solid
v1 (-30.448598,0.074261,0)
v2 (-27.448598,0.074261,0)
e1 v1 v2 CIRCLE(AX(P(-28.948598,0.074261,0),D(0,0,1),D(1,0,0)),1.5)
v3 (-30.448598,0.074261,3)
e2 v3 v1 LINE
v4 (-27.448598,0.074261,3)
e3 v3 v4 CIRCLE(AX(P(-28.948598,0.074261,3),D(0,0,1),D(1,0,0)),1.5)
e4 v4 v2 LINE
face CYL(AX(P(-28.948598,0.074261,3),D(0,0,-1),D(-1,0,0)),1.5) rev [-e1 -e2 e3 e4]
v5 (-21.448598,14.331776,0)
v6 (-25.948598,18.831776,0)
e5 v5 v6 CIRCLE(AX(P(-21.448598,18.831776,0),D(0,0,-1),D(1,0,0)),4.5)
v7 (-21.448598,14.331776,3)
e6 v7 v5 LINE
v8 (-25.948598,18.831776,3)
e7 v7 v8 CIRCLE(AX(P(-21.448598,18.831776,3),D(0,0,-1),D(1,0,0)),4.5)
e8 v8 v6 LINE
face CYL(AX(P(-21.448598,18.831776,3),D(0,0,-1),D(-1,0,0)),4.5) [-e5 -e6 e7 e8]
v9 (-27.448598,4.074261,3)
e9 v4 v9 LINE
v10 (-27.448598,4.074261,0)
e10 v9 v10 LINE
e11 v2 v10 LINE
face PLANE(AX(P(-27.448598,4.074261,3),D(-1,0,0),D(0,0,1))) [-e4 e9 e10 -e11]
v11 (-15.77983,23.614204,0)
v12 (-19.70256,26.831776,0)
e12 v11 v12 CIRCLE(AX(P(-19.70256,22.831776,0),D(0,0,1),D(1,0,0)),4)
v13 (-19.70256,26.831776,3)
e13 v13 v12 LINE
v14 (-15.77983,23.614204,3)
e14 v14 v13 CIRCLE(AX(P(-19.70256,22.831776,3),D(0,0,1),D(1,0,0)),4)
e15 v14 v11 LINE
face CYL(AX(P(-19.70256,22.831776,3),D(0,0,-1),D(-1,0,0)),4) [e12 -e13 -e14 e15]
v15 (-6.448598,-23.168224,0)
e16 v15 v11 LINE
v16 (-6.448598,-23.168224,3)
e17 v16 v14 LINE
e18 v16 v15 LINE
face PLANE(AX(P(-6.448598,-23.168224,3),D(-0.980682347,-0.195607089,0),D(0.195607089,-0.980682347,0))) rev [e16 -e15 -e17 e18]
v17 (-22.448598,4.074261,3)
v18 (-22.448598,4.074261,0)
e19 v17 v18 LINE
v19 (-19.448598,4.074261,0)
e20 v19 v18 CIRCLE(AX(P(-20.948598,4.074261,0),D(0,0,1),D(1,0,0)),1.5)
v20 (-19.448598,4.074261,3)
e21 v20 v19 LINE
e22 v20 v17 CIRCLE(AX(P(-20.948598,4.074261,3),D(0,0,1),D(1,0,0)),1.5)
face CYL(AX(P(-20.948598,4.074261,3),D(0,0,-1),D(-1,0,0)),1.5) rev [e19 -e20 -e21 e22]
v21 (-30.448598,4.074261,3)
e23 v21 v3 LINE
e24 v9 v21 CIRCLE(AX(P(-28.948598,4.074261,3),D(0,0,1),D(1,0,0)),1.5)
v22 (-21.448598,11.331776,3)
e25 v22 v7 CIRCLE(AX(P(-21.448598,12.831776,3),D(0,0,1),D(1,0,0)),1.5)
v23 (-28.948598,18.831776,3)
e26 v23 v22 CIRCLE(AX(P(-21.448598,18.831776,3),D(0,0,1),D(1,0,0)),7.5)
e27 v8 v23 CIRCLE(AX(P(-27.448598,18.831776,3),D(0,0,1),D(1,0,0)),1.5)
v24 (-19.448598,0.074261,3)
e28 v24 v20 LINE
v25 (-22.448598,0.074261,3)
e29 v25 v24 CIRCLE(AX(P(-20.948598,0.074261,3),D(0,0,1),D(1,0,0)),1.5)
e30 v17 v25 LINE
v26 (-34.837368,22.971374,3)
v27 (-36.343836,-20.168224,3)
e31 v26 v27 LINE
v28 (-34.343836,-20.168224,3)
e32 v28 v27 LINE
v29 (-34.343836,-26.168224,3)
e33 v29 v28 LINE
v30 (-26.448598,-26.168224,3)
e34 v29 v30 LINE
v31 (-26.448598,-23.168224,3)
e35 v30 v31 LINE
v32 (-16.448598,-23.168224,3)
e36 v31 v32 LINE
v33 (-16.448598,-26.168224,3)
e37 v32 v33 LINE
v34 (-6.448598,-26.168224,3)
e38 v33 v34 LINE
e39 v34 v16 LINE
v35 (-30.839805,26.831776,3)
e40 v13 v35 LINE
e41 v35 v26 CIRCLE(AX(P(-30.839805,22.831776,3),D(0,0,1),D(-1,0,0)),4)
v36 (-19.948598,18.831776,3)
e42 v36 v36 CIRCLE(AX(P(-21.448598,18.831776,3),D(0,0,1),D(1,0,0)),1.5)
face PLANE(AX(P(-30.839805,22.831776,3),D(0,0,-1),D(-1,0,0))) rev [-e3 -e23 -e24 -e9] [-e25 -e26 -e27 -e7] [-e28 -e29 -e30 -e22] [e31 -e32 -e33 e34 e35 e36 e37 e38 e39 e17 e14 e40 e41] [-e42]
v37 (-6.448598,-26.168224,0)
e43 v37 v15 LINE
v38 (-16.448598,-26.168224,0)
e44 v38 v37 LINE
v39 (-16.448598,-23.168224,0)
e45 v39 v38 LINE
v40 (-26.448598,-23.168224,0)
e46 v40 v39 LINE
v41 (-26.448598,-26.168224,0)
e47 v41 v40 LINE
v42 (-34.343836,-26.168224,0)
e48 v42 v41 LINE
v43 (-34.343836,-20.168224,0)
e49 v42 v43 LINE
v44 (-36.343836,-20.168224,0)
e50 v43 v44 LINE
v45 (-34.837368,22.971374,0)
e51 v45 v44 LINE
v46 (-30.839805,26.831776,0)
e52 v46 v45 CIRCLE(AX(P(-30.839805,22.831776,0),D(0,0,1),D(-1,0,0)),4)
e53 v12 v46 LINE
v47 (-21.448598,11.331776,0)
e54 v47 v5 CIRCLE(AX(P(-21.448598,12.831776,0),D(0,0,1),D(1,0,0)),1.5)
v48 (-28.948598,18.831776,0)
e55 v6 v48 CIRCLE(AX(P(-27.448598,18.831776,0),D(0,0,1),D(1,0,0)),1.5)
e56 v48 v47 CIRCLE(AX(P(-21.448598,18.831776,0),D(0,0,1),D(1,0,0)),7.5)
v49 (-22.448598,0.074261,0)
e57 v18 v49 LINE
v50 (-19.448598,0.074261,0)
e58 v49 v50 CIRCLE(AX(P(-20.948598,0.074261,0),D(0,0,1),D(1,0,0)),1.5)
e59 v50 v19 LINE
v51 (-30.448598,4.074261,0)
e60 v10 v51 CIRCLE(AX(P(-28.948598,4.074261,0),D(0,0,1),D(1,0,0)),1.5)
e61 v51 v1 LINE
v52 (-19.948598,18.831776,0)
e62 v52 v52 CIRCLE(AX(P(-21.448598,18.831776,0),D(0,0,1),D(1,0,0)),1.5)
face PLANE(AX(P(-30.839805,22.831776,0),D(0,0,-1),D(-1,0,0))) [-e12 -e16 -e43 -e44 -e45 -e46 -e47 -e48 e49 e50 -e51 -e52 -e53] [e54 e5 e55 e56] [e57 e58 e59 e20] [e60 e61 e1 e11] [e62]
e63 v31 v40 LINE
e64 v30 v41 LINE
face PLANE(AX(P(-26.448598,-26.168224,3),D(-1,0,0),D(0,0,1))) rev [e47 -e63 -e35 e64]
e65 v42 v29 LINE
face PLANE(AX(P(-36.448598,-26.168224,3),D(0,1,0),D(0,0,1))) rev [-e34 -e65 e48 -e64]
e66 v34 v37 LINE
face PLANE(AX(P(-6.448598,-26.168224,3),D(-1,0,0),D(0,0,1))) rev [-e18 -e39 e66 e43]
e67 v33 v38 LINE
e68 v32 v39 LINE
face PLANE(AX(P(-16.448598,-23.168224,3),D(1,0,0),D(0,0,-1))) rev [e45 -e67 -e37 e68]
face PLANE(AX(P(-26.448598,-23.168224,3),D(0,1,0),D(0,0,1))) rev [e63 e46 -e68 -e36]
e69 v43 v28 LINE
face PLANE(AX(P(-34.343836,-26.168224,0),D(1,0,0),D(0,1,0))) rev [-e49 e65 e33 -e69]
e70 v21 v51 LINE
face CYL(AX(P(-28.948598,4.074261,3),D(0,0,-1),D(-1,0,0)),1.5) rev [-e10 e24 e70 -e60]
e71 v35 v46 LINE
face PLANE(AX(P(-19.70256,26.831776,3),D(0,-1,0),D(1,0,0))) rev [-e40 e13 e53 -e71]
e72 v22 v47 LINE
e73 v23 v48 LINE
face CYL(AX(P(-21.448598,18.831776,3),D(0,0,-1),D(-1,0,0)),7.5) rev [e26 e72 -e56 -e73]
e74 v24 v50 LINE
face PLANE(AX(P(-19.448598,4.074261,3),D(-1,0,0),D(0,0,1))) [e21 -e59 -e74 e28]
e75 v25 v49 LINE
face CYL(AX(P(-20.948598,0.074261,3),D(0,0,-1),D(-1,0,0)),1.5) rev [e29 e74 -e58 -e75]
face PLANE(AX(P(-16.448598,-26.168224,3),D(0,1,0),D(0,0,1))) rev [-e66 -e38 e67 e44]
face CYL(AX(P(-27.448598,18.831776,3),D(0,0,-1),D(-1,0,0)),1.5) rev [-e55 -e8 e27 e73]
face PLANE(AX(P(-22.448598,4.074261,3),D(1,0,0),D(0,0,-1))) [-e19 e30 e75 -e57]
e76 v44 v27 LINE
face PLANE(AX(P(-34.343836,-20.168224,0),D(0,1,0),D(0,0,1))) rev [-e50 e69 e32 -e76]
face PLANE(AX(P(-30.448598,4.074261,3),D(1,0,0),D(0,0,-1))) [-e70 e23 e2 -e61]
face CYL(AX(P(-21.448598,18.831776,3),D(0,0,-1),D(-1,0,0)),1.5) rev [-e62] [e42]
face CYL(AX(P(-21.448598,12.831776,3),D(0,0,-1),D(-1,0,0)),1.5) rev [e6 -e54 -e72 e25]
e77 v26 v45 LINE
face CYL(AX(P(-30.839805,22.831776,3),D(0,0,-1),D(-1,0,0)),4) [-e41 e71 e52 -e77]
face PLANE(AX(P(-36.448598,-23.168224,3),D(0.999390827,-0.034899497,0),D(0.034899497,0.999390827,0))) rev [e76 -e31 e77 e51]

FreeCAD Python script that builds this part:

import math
import FreeCAD as App
import Part
import Sketcher
from FreeCAD import Vector
Q = App.Units.Quantity


def add_polygon(sketch, points):
    """Adds a closed chain of lines whose ends are joined by coincident constraints."""
    first, n = sketch.GeometryCount, len(points)
    for a, b in zip(points, points[1:] + points[:1]):
        sketch.addGeometry(Part.LineSegment(App.Vector(*a, 0), App.Vector(*b, 0)), False)
    for i in range(n):
        sketch.addConstraint(Sketcher.Constraint("Coincident", first + i, 2, first + (i + 1) % n, 1))

doc = App.newDocument("Part")
body = doc.addObject("PartDesign::Body", "Body")

# Sketch on XY plane
sketch1 = doc.addObject("Sketcher::SketchObject", "Sketch")
body.addObject(sketch1)
sketch1.AttachmentSupport = (doc.XY_Plane, [""])
sketch1.MapMode = "FlatFace"
sketch1.addGeometry(Part.LineSegment(Vector(-36.4, -23.2, 0), Vector(-36.4, -26.2, 0)), False)
sketch1.addGeometry(Part.LineSegment(Vector(-36.4, -26.2, 0), Vector(-26.4, -26.2, 0)), False)
sketch1.addGeometry(Part.LineSegment(Vector(-26.4, -26.2, 0), Vector(-26.4, -23.2, 0)), False)
sketch1.addGeometry(Part.LineSegment(Vector(-26.4, -23.2, 0), Vector(-16.4, -23.2, 0)), False)
sketch1.addGeometry(Part.LineSegment(Vector(-16.4, -23.2, 0), Vector(-16.4, -26.2, 0)), False)
sketch1.addGeometry(Part.LineSegment(Vector(-16.4, -26.2, 0), Vector(-6.4, -26.2, 0)), False)
sketch1.addGeometry(Part.LineSegment(Vector(-6.4, -26.2, 0), Vector(-6.4, -23.2, 0)), False)
sketch1.addGeometry(Part.LineSegment(Vector(-6.4, -23.2, 0), Vector(-15.8, 23.6, 0)), False)
sketch1.addGeometry(Part.ArcOfCircle(Part.Circle(Vector(-19.7, 22.8, 0), Vector(0, 0, 1), 4), math.radians(11), math.radians(90)), False)
sketch1.addGeometry(Part.LineSegment(Vector(-19.7, 26.8, 0), Vector(-30.8, 26.8, 0)), False)
sketch1.addGeometry(Part.ArcOfCircle(Part.Circle(Vector(-30.8, 22.8, 0), Vector(0, 0, 1), 4), math.radians(90), math.radians(178)), False)
sketch1.addGeometry(Part.LineSegment(Vector(-34.8, 23, 0), Vector(-36.4, -23.2, 0)), False)
sketch1.addGeometry(Part.LineSegment(Vector(-19.4, 4.1, 0), Vector(-19.4, 0.1, 0)), False)
sketch1.addGeometry(Part.ArcOfCircle(Part.Circle(Vector(-20.9, 0.1, 0), Vector(0, 0, 1), 1.5), math.radians(180), math.radians(360)), False)
sketch1.addGeometry(Part.LineSegment(Vector(-22.4, 0.1, 0), Vector(-22.4, 4.1, 0)), False)
sketch1.addGeometry(Part.ArcOfCircle(Part.Circle(Vector(-20.9, 4.1, 0), Vector(0, 0, 1), 1.5), math.radians(0), math.radians(180)), False)
sketch1.addGeometry(Part.LineSegment(Vector(-27.4, 4.1, 0), Vector(-27.4, 0.1, 0)), False)
sketch1.addGeometry(Part.ArcOfCircle(Part.Circle(Vector(-28.9, 0.1, 0), Vector(0, 0, 1), 1.5), math.radians(180), math.radians(360)), False)
sketch1.addGeometry(Part.LineSegment(Vector(-30.4, 0.1, 0), Vector(-30.4, 4.1, 0)), False)
sketch1.addGeometry(Part.ArcOfCircle(Part.Circle(Vector(-28.9, 4.1, 0), Vector(0, 0, 1), 1.5), math.radians(0), math.radians(180)), False)
sketch1.addGeometry(Part.Circle(Vector(-21.4, 18.8, 0), Vector(0, 0, 1), 1.5), False)
sketch1.addGeometry(Part.ArcOfCircle(Part.Circle(Vector(-27.4, 18.8, 0), Vector(0, 0, 1), 1.5), math.radians(0), math.radians(180)), False)
sketch1.addGeometry(Part.ArcOfCircle(Part.Circle(Vector(-21.4, 18.8, 0), Vector(0, 0, 1), 4.5), math.radians(-180), math.radians(-90)), False)
sketch1.addGeometry(Part.ArcOfCircle(Part.Circle(Vector(-21.4, 12.8, 0), Vector(0, 0, 1), 1.5), math.radians(-90), math.radians(90)), False)
sketch1.addGeometry(Part.ArcOfCircle(Part.Circle(Vector(-21.4, 18.8, 0), Vector(0, 0, 1), 7.5), math.radians(180), math.radians(270)), False)
sketch1.addConstraint(Sketcher.Constraint("Coincident", 0, 2, 1, 1))
sketch1.addConstraint(Sketcher.Constraint("Coincident", 1, 2, 2, 1))
sketch1.addConstraint(Sketcher.Constraint("Coincident", 2, 2, 3, 1))
sketch1.addConstraint(Sketcher.Constraint("Coincident", 3, 2, 4, 1))
sketch1.addConstraint(Sketcher.Constraint("Coincident", 4, 2, 5, 1))
sketch1.addConstraint(Sketcher.Constraint("Coincident", 5, 2, 6, 1))
sketch1.addConstraint(Sketcher.Constraint("Coincident", 6, 2, 7, 1))
sketch1.addConstraint(Sketcher.Constraint("Tangent", 7, 2, 8, 1))
sketch1.addConstraint(Sketcher.Constraint("Tangent", 8, 2, 9, 1))
sketch1.addConstraint(Sketcher.Constraint("Tangent", 9, 2, 10, 1))
sketch1.addConstraint(Sketcher.Constraint("Tangent", 10, 2, 11, 1))
sketch1.addConstraint(Sketcher.Constraint("Coincident", 11, 2, 0, 1))
sketch1.addConstraint(Sketcher.Constraint("Tangent", 12, 2, 13, 2))
sketch1.addConstraint(Sketcher.Constraint("Tangent", 13, 1, 14, 1))
sketch1.addConstraint(Sketcher.Constraint("Tangent", 14, 2, 15, 2))
sketch1.addConstraint(Sketcher.Constraint("Tangent", 15, 1, 12, 1))
sketch1.addConstraint(Sketcher.Constraint("Tangent", 16, 2, 17, 2))
sketch1.addConstraint(Sketcher.Constraint("Tangent", 17, 1, 18, 1))
sketch1.addConstraint(Sketcher.Constraint("Tangent", 18, 2, 19, 2))
sketch1.addConstraint(Sketcher.Constraint("Tangent", 19, 1, 16, 1))
sketch1.addConstraint(Sketcher.Constraint("Tangent", 21, 1, 22, 1))
sketch1.addConstraint(Sketcher.Constraint("Tangent", 22, 2, 23, 2))
sketch1.addConstraint(Sketcher.Constraint("Tangent", 23, 1, 24, 2))
sketch1.addConstraint(Sketcher.Constraint("Tangent", 24, 1, 21, 2))
sketch1.addConstraint(Sketcher.Constraint("Vertical", 0))
sketch1.addConstraint(Sketcher.Constraint("Horizontal", 1))
sketch1.addConstraint(Sketcher.Constraint("Vertical", 2))
sketch1.addConstraint(Sketcher.Constraint("Horizontal", 3))
sketch1.addConstraint(Sketcher.Constraint("Vertical", 4))
sketch1.addConstraint(Sketcher.Constraint("Horizontal", 5))
sketch1.addConstraint(Sketcher.Constraint("Vertical", 6))
sketch1.addConstraint(Sketcher.Constraint("Horizontal", 9))
sketch1.addConstraint(Sketcher.Constraint("Vertical", 12))
sketch1.addConstraint(Sketcher.Constraint("Vertical", 14))
sketch1.addConstraint(Sketcher.Constraint("Vertical", 16))
sketch1.addConstraint(Sketcher.Constraint("Vertical", 18))
sketch1.addConstraint(Sketcher.Constraint("Coincident", 22, 3, 20, 3))
sketch1.addConstraint(Sketcher.Constraint("Coincident", 24, 3, 20, 3))
sketch1.addConstraint(Sketcher.Constraint("Equal", 8, 10))
sketch1.addConstraint(Sketcher.Constraint("Equal", 15, 17))
sketch1.addConstraint(Sketcher.Constraint("Equal", 19, 20))
sketch1.addConstraint(Sketcher.Constraint("Equal", 20, 21))
sketch1.addConstraint(Sketcher.Constraint("Horizontal", 13, 3, 17, 3))
sketch1.addConstraint(Sketcher.Constraint("Horizontal", 15, 3, 19, 3))
sketch1.addConstraint(Sketcher.Constraint("Horizontal", 20, 3, 21, 3))
sketch1.addConstraint(Sketcher.Constraint("Horizontal", 1, 2, 4, 2))
sketch1.addConstraint(Sketcher.Constraint("Horizontal", 3, 2, 6, 2))
sketch1.addConstraint(Sketcher.Constraint("Horizontal", 6, 2, 11, 2))
sketch1.addConstraint(Sketcher.Constraint("Vertical", 22, 3, 23, 3))
sketch1.addConstraint(Sketcher.Constraint("Vertical", 21, 3, 16, 2))
sketch1.addConstraint(Sketcher.Constraint("Equal", 1, 3))
sketch1.addConstraint(Sketcher.Constraint("Equal", 3, 5))
sketch1.addConstraint(Sketcher.Constraint("Diameter", 20, Q("3 mm")))
sketch1.addConstraint(Sketcher.Constraint("Radius", 8, Q("4 mm")))
sketch1.addConstraint(Sketcher.Constraint("Radius", 22, Q("4.5 mm")))
sketch1.addConstraint(Sketcher.Constraint("DistanceX", 1, 1, 1, 2, Q("10 mm")))
sketch1.addConstraint(Sketcher.Constraint("DistanceY", 0, 2, 0, 1, Q("3 mm")))
sketch1.addConstraint(Sketcher.Constraint("DistanceY", 12, 2, 12, 1, Q("4 mm")))
sketch1.addConstraint(Sketcher.Constraint("Angle", 11, Q("-92 deg")))
sketch1.addConstraint(Sketcher.Constraint("DistanceX", 17, 3, 13, 3, Q("8 mm")))
sketch1.addConstraint(Sketcher.Constraint("DistanceY", 20, 3, 8, 3, Q("4 mm")))
sketch1.addConstraint(Sketcher.Constraint("DistanceX", 0, 2, 23, 3, Q("15 mm")))
sketch1.addConstraint(Sketcher.Constraint("DistanceY", 0, 2, 23, 3, Q("39 mm")))
sketch1.addConstraint(Sketcher.Constraint("DistanceX", 13, 3, -1, 1, Q("20.948598 mm")))
sketch1.addConstraint(Sketcher.Constraint("DistanceX", 9, 2, 9, 1, Q("11.137245 mm")))
sketch1.addConstraint(Sketcher.Constraint("DistanceY", -1, 1, 13, 3, Q("0.074261 mm")))
sketch1.addConstraint(Sketcher.Constraint("DistanceY", -1, 1, 8, 3, Q("22.831776 mm")))
pad1 = doc.addObject("PartDesign::Pad", "Pad")
body.addObject(pad1)
pad1.Profile = sketch1
pad1.Length = 3

# Sketch on XY plane
sketch2 = doc.addObject("Sketcher::SketchObject", "Sketch001")
body.addObject(sketch2)
sketch2.AttachmentSupport = (doc.XY_Plane, [""])
sketch2.MapMode = "FlatFace"
sketch2.AttachmentOffset = App.Placement(Vector(0, 0, 3), App.Rotation())
add_polygon(sketch2, [(-34.3, -26.2), (-34.3, -20.2), (-36.3, -20.2), (-36.4, -23.2), (-36.4, -26.2)])  # lines 0-4
sketch2.addConstraint(Sketcher.Constraint("Vertical", 0))
sketch2.addConstraint(Sketcher.Constraint("Horizontal", 1))
sketch2.addConstraint(Sketcher.Constraint("Vertical", 3))
sketch2.addConstraint(Sketcher.Constraint("Horizontal", 4))
sketch2.addConstraint(Sketcher.Constraint("DistanceX", 1, 2, 1, 1, Q("2 mm")))
sketch2.addConstraint(Sketcher.Constraint("DistanceY", 0, 1, 0, 2, Q("6 mm")))
sketch2.addConstraint(Sketcher.Constraint("DistanceY", 3, 2, 3, 1, Q("3 mm")))
sketch2.addConstraint(Sketcher.Constraint("Angle", 2, Q("-92 deg")))
sketch2.addConstraint(Sketcher.Constraint("DistanceX", 2, 2, -1, 1, Q("36.448598 mm")))
sketch2.addConstraint(Sketcher.Constraint("DistanceY", 0, 2, -1, 1, Q("20.168224 mm")))
pocket1 = doc.addObject("PartDesign::Pocket", "Pocket")
body.addObject(pocket1)
pocket1.Profile = sketch2
pocket1.Type = "ThroughAll"

doc.recompute()
